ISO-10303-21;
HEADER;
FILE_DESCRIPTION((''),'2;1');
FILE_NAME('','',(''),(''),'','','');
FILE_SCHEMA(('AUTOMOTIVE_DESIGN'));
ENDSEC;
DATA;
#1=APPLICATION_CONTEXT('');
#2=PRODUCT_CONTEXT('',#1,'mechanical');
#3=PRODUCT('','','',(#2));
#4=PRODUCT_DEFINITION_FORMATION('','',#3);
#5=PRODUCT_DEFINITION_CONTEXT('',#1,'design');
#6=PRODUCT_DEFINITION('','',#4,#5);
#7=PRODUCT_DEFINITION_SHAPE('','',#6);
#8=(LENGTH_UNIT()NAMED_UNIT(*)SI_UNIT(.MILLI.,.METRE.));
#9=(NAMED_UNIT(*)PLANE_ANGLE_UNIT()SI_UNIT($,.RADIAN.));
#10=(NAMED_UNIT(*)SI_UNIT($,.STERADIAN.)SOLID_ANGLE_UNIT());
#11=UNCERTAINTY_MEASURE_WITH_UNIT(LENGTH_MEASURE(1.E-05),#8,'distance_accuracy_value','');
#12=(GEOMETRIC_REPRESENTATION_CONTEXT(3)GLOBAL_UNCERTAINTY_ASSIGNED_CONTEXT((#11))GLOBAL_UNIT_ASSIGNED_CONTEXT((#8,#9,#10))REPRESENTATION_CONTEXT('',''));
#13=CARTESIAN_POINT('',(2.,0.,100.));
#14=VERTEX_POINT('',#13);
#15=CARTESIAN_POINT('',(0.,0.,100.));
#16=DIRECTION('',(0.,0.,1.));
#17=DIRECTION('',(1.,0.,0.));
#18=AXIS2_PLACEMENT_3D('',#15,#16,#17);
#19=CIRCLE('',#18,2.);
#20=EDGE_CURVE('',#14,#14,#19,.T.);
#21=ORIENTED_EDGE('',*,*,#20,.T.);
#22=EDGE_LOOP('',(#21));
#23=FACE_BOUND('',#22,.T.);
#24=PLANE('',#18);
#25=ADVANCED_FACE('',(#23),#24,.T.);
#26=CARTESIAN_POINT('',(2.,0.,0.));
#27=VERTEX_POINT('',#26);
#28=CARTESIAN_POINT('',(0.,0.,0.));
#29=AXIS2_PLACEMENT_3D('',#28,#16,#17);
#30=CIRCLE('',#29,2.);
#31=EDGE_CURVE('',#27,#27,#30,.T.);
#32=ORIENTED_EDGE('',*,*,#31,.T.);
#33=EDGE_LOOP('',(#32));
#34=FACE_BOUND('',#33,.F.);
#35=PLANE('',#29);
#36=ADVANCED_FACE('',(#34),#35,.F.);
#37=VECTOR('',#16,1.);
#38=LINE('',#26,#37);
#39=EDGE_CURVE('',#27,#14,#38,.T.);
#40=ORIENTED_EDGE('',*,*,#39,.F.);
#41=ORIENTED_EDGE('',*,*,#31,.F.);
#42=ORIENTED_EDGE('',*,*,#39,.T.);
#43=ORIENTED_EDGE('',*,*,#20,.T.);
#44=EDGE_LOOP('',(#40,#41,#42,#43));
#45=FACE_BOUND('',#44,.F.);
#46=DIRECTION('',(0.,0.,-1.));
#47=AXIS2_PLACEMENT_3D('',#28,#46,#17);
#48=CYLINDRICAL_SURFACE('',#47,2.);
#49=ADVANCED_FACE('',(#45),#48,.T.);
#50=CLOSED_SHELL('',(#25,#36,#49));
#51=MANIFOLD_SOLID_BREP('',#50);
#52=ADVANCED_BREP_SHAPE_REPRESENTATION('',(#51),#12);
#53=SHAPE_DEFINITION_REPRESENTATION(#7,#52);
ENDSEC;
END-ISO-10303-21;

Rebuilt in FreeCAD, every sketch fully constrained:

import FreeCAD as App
import Part
import Sketcher

V = App.Vector
Q = App.Units.Quantity

doc = App.newDocument("Part")
body = doc.addObject("PartDesign::Body", "Body")

# Sketch on XY plane
sketch1 = body.newObject("Sketcher::SketchObject", "Sketch")
sketch1.AttachmentSupport = (doc.getObject("XY_Plane"), [""])
sketch1.MapMode = "FlatFace"
sketch1.addGeometry(Part.Circle(V(0, 0, 0), V(0, 0, 1), 2), False)
sketch1.addConstraint([
    Sketcher.Constraint("Coincident", 0, 3, -1, 1),
    Sketcher.Constraint("Diameter", 0, Q("4 mm")),
])
pad1 = body.newObject("PartDesign::Pad", "Pad")
pad1.Profile = sketch1
pad1.Length = 100

doc.recompute()
